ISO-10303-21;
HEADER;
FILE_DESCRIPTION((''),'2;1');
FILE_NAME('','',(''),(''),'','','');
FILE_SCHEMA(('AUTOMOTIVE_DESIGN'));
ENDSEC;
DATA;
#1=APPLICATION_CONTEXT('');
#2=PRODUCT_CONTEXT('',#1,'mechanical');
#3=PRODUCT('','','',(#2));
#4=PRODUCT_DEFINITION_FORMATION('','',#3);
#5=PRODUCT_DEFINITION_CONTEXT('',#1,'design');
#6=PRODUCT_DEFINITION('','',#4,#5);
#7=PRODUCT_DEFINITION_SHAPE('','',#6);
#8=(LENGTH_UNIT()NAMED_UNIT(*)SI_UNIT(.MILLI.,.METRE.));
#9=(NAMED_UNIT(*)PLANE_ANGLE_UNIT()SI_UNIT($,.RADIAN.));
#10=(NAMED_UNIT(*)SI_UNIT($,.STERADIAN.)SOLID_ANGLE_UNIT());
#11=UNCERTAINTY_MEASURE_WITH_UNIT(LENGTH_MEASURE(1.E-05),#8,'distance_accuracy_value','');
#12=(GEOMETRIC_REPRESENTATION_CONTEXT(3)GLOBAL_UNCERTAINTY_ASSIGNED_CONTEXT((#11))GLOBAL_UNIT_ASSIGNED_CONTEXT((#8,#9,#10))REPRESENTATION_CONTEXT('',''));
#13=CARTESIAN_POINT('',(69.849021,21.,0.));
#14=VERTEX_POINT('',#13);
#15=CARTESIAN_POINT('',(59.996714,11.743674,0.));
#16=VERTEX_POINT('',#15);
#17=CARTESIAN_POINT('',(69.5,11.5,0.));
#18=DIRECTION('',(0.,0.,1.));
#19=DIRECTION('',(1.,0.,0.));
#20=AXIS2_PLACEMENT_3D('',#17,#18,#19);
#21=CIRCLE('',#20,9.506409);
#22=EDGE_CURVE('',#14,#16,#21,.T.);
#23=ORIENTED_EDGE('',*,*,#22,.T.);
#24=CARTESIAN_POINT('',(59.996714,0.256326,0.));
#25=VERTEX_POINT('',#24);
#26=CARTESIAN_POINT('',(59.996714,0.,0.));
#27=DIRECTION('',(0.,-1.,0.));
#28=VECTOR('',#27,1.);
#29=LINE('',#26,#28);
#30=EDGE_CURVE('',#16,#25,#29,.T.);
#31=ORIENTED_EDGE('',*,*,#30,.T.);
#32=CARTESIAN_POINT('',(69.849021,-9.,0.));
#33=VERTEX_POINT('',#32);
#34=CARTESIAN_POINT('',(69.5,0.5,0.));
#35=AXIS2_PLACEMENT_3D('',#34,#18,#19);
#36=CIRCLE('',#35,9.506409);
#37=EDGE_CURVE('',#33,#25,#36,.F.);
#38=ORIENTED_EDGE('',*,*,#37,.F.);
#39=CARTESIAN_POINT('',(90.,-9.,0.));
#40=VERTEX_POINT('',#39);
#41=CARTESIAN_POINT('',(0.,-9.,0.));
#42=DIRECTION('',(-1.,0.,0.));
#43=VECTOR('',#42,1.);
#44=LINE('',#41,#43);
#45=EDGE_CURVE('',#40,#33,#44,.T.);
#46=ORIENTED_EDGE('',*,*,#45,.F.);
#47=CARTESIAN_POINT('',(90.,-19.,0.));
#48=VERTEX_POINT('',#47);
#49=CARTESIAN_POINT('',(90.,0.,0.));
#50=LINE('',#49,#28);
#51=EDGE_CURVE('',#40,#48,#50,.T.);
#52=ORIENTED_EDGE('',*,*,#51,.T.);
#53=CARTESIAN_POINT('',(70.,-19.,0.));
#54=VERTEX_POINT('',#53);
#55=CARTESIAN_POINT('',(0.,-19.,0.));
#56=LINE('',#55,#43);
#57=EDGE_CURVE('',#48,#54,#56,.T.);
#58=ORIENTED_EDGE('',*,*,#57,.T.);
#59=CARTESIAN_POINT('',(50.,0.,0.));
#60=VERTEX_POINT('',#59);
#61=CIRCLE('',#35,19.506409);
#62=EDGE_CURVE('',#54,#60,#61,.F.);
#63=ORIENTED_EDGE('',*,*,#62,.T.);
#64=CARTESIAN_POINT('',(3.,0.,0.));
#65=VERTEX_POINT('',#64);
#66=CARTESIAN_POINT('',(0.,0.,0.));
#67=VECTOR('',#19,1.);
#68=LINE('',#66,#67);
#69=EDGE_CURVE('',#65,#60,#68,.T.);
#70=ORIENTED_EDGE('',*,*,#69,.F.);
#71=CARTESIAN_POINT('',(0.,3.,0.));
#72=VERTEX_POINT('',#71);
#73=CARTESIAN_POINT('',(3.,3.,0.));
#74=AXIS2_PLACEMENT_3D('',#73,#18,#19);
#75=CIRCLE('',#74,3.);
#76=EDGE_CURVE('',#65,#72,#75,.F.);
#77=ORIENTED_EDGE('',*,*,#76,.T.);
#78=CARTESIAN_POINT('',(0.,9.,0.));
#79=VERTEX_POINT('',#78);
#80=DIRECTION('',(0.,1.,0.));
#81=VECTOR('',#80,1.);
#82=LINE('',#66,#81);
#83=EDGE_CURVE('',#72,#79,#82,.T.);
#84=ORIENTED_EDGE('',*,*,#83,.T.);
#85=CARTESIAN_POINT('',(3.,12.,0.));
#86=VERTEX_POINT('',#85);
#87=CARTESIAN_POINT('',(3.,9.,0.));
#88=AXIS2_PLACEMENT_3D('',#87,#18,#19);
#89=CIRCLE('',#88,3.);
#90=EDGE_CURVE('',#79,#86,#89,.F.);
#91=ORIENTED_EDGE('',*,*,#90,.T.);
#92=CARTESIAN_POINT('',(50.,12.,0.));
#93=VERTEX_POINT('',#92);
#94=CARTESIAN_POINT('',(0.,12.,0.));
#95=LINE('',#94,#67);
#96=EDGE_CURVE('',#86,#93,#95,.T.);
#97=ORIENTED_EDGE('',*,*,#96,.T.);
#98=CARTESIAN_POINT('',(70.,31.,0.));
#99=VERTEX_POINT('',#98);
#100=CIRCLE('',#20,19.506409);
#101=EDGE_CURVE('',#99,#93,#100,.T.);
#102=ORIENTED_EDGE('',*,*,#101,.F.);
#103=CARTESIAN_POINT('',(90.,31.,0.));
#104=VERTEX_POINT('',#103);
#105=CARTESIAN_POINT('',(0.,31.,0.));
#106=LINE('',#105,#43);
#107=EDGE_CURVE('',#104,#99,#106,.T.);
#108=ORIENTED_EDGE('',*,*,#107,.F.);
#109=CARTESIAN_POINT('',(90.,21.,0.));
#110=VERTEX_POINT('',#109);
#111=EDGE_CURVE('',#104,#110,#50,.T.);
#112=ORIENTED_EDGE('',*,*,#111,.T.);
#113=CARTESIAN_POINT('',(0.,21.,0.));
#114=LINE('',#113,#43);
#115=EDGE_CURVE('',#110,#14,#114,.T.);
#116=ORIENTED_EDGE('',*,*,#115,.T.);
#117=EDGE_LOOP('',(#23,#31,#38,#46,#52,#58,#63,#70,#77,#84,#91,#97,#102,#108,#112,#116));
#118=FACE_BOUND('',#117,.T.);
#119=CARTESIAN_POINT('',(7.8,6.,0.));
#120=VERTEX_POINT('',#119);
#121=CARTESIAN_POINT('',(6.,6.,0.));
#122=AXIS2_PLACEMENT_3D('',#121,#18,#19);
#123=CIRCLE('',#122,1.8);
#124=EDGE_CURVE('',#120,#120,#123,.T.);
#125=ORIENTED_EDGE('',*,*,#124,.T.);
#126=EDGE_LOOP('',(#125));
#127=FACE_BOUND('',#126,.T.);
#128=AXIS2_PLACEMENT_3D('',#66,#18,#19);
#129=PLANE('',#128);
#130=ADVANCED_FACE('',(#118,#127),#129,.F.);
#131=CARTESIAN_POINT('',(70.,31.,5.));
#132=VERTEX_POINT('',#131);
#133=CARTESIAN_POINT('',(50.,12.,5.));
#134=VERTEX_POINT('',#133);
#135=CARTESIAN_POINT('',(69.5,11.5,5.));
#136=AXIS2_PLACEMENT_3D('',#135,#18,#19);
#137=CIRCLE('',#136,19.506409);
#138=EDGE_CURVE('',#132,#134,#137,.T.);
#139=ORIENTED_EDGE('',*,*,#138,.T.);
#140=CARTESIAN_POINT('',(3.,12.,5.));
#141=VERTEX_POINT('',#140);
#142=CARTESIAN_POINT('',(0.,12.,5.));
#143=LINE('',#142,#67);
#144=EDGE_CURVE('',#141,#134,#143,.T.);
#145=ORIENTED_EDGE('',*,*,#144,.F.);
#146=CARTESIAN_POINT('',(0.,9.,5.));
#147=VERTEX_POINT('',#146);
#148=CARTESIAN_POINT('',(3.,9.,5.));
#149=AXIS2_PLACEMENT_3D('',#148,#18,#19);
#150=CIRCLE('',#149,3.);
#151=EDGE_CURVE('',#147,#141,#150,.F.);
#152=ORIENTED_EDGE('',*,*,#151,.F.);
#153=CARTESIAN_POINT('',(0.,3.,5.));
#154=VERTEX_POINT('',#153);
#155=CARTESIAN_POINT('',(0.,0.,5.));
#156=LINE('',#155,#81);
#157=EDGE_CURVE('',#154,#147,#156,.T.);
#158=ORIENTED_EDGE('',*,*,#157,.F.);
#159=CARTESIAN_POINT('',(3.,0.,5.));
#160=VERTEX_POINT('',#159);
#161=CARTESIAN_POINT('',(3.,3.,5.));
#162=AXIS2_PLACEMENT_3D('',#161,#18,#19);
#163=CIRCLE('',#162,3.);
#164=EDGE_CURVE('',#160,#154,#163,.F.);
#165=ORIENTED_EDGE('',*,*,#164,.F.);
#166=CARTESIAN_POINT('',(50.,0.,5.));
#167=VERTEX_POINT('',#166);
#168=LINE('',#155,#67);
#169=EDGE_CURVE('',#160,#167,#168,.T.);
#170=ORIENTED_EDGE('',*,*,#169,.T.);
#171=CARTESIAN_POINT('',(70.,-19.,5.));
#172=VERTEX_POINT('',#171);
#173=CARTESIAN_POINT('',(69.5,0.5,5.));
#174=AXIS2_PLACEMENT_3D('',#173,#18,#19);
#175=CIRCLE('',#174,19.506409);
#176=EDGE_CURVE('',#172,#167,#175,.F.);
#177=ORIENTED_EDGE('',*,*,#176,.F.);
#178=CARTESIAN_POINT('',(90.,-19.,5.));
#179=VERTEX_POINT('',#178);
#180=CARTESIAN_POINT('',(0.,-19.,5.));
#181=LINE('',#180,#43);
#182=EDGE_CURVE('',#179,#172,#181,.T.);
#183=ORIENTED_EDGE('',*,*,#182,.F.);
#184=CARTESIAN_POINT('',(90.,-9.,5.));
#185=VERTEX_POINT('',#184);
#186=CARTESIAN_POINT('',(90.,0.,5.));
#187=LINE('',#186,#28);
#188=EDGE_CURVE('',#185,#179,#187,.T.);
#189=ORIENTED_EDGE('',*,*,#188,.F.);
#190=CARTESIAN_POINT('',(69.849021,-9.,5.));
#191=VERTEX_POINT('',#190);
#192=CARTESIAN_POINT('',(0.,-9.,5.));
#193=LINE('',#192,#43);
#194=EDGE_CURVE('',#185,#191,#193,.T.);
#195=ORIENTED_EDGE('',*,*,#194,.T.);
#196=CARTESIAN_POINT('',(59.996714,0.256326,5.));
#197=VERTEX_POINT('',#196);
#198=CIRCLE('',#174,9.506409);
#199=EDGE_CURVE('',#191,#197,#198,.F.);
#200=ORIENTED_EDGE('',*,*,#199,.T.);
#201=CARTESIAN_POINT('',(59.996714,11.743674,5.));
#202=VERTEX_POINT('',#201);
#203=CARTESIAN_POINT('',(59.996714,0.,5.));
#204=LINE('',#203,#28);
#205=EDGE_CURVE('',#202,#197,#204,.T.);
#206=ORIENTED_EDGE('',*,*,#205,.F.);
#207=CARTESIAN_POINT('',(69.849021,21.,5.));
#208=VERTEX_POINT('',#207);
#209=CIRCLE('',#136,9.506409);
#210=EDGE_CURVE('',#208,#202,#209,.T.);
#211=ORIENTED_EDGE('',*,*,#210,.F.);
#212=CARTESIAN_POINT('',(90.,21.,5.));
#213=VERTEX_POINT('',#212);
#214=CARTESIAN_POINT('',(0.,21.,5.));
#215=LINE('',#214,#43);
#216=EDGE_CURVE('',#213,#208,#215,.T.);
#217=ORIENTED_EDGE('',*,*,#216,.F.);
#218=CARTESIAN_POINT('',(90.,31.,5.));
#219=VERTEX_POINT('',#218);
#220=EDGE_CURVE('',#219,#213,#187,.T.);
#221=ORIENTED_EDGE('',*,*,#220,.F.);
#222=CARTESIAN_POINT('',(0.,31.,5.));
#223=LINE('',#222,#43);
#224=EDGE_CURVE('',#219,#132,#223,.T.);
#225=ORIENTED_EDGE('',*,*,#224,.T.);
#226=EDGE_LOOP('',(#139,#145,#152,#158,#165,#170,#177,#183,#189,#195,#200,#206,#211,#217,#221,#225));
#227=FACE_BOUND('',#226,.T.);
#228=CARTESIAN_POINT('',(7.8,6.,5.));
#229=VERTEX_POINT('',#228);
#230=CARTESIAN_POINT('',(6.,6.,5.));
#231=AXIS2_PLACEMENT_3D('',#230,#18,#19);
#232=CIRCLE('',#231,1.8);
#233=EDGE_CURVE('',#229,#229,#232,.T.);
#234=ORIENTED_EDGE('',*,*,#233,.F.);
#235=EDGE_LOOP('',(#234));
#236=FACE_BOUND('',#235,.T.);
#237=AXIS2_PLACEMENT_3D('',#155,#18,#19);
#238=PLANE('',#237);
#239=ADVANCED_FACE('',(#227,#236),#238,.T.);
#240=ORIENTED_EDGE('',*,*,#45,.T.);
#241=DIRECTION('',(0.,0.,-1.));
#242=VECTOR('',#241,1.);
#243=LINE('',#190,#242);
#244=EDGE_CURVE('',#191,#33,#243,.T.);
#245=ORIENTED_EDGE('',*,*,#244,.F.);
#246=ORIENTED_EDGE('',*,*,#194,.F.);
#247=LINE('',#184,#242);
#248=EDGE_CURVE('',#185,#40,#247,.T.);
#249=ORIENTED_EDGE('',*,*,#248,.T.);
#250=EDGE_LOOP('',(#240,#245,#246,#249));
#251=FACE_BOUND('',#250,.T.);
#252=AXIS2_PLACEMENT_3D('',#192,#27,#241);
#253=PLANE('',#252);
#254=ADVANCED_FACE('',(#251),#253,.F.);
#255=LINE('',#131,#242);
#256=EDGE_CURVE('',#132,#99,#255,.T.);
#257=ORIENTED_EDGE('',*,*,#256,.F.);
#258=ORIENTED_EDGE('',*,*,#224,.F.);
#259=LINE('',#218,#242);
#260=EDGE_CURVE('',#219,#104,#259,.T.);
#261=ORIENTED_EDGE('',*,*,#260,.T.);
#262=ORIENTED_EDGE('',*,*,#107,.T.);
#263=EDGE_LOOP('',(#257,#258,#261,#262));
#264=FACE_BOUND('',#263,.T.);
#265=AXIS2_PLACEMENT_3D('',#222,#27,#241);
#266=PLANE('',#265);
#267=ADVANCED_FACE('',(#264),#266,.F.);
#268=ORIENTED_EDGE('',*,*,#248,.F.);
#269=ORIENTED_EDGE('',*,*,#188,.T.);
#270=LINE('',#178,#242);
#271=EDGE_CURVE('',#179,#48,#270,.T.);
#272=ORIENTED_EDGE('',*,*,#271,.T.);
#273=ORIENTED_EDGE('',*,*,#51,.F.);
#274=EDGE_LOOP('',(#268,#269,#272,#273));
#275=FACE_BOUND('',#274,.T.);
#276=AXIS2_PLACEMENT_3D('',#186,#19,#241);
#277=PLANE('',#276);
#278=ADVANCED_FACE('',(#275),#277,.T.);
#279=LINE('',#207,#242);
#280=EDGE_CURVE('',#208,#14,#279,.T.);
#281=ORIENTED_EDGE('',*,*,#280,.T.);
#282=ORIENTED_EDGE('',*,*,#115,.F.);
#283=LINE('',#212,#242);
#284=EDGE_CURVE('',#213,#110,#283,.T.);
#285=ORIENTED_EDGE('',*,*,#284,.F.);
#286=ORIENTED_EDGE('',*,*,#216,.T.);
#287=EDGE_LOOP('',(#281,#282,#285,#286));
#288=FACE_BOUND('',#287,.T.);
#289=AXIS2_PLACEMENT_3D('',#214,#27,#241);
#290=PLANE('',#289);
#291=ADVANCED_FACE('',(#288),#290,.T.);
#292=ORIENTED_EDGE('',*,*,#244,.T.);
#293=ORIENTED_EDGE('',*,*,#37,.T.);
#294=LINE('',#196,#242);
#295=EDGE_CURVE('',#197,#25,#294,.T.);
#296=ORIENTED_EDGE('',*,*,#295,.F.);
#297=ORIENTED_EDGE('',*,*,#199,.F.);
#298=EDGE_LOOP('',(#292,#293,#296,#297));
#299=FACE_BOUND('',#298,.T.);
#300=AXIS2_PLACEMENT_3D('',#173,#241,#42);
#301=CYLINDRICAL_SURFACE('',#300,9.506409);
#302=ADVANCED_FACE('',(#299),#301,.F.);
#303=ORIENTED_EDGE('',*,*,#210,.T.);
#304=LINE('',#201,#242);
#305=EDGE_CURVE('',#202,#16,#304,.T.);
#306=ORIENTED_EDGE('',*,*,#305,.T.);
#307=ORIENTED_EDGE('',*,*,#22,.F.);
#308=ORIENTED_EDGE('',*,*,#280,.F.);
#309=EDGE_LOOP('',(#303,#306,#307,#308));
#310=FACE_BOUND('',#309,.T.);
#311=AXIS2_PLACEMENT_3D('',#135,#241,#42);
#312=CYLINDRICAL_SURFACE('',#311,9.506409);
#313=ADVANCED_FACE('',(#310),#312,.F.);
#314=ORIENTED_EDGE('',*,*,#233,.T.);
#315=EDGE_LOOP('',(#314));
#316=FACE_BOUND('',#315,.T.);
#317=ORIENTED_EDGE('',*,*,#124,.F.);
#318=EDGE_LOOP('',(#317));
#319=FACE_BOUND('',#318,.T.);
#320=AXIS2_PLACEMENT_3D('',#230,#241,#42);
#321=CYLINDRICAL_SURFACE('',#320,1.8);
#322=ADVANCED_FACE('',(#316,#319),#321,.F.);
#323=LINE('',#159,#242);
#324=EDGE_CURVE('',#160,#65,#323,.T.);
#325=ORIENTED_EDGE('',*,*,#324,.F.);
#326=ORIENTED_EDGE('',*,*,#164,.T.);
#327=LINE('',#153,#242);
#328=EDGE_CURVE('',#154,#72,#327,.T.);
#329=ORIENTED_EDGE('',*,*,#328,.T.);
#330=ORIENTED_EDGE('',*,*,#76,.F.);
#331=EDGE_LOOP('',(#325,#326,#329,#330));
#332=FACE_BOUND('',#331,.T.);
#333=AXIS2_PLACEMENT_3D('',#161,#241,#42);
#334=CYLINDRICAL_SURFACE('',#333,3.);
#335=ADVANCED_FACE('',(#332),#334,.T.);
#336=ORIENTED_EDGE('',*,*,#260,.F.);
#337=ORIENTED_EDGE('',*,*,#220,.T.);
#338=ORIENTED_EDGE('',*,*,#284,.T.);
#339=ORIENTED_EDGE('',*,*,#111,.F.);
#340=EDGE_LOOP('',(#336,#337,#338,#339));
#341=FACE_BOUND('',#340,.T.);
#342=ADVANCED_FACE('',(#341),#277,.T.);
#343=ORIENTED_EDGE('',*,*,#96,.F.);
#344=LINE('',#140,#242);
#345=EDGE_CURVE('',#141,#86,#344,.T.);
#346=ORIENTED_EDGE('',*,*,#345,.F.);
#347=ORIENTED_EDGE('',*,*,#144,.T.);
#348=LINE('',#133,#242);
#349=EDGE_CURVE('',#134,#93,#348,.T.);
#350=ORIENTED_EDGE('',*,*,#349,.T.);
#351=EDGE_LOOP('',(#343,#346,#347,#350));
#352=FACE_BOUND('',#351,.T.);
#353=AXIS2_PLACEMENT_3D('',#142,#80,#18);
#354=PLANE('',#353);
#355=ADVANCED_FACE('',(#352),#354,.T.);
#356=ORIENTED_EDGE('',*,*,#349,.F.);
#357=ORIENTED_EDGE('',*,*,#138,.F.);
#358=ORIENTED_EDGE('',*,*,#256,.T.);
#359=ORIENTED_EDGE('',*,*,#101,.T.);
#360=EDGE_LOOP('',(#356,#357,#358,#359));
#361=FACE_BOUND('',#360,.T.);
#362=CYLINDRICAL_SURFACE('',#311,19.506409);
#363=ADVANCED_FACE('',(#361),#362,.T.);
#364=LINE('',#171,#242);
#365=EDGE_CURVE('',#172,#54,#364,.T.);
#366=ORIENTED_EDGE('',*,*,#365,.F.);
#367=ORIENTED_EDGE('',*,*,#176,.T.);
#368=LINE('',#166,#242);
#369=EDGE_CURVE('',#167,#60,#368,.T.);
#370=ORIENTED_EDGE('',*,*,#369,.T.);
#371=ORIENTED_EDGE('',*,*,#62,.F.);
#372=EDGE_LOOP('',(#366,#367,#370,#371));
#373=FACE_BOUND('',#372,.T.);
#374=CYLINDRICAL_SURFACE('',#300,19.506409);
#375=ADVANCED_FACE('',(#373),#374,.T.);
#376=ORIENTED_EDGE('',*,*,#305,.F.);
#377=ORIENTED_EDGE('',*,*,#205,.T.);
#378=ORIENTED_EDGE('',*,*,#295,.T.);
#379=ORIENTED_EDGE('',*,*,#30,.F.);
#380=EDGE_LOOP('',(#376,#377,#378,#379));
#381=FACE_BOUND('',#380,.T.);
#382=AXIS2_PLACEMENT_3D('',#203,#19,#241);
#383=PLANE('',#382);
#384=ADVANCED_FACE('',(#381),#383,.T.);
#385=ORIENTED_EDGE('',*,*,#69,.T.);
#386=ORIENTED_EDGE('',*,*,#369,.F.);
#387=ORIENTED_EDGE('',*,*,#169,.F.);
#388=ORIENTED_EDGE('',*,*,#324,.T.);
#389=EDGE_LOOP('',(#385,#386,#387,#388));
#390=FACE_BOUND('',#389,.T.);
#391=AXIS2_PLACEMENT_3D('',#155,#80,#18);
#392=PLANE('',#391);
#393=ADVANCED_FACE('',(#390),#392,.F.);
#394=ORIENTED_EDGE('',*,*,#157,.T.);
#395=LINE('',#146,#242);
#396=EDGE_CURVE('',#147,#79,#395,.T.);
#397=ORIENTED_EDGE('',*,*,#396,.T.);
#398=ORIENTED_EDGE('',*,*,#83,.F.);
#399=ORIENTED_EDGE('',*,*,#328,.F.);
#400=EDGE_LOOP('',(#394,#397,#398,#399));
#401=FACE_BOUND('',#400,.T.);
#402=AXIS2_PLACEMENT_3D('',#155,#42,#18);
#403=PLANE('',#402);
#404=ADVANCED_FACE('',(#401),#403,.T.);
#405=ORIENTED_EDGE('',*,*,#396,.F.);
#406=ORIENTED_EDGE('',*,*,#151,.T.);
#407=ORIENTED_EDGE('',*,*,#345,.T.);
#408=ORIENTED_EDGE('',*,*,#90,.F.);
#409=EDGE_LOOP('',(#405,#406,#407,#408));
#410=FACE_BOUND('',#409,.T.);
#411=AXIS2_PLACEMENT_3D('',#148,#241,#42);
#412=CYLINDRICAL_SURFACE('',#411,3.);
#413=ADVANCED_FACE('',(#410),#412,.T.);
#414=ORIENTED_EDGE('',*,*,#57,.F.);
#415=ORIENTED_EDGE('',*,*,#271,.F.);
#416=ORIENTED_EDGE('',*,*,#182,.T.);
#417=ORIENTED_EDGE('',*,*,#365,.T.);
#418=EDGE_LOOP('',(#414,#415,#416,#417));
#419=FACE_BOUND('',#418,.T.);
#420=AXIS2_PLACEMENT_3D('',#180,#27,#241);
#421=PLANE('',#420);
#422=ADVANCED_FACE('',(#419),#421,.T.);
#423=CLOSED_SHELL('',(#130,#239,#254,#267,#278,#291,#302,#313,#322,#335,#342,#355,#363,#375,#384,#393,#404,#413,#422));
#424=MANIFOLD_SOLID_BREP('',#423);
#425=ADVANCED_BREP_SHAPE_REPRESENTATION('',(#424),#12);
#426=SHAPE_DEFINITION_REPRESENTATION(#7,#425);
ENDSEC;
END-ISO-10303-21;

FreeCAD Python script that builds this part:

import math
import FreeCAD as App
import Part
import Sketcher
from FreeCAD import Vector

doc = App.newDocument("Part")
body = doc.addObject("PartDesign::Body", "Body")

sketch1 = body.newObject("Sketcher::SketchObject", "Sketch")
sketch1.AttachmentSupport = (doc.getObject("XY_Plane"), [""])
sketch1.MapMode = "FlatFace"
sketch1.addGeometry(Part.ArcOfCircle(Part.Circle(Vector(3, 9, 0), Vector(0, 0, 1), 3), math.radians(90), math.radians(180)), False)
sketch1.addGeometry(Part.LineSegment(Vector(0, 9, 0), Vector(0, 3, 0)), False)
sketch1.addGeometry(Part.ArcOfCircle(Part.Circle(Vector(3, 3, 0), Vector(0, 0, 1), 3), math.radians(180), math.radians(270)), False)
sketch1.addGeometry(Part.LineSegment(Vector(3, 0, 0), Vector(50, 0, 0)), False)
sketch1.addGeometry(Part.ArcOfCircle(Part.Circle(Vector(69.5, 0.5, 0), Vector(0, 0, 1), 19.5), math.radians(-179), math.radians(-89)), False)
sketch1.addGeometry(Part.LineSegment(Vector(70, -19, 0), Vector(90, -19, 0)), False)
sketch1.addGeometry(Part.LineSegment(Vector(90, -19, 0), Vector(90, -9, 0)), False)
sketch1.addGeometry(Part.LineSegment(Vector(90, -9, 0), Vector(69.8, -9, 0)), False)
sketch1.addGeometry(Part.ArcOfCircle(Part.Circle(Vector(69.5, 0.5, 0), Vector(0, 0, 1), 9.5), math.radians(-179), math.radians(-88)), False)
sketch1.addGeometry(Part.LineSegment(Vector(60, 0.3, 0), Vector(60, 11.7, 0)), False)
sketch1.addGeometry(Part.ArcOfCircle(Part.Circle(Vector(69.5, 11.5, 0), Vector(0, 0, 1), 9.5), math.radians(88), math.radians(179)), False)
sketch1.addGeometry(Part.LineSegment(Vector(69.8, 21, 0), Vector(90, 21, 0)), False)
sketch1.addGeometry(Part.LineSegment(Vector(90, 21, 0), Vector(90, 31, 0)), False)
sketch1.addGeometry(Part.LineSegment(Vector(90, 31, 0), Vector(70, 31, 0)), False)
sketch1.addGeometry(Part.ArcOfCircle(Part.Circle(Vector(69.5, 11.5, 0), Vector(0, 0, 1), 19.5), math.radians(89), math.radians(179)), False)
sketch1.addGeometry(Part.LineSegment(Vector(50, 12, 0), Vector(3, 12, 0)), False)
sketch1.addGeometry(Part.Circle(Vector(6, 6, 0), Vector(0, 0, 1), 1.8), False)
sketch1.addConstraint(Sketcher.Constraint("Tangent", 0, 2, 1, 1))
sketch1.addConstraint(Sketcher.Constraint("Tangent", 1, 2, 2, 1))
sketch1.addConstraint(Sketcher.Constraint("Tangent", 2, 2, 3, 1))
sketch1.addConstraint(Sketcher.Constraint("Coincident", 3, 2, 4, 1))
sketch1.addConstraint(Sketcher.Constraint("Coincident", 4, 2, 5, 1))
sketch1.addConstraint(Sketcher.Constraint("Coincident", 5, 2, 6, 1))
sketch1.addConstraint(Sketcher.Constraint("Coincident", 6, 2, 7, 1))
sketch1.addConstraint(Sketcher.Constraint("Coincident", 7, 2, 8, 2))
sketch1.addConstraint(Sketcher.Constraint("Coincident", 8, 1, 9, 1))
sketch1.addConstraint(Sketcher.Constraint("Coincident", 9, 2, 10, 2))
sketch1.addConstraint(Sketcher.Constraint("Coincident", 10, 1, 11, 1))
sketch1.addConstraint(Sketcher.Constraint("Coincident", 11, 2, 12, 1))
sketch1.addConstraint(Sketcher.Constraint("Coincident", 12, 2, 13, 1))
sketch1.addConstraint(Sketcher.Constraint("Coincident", 13, 2, 14, 1))
sketch1.addConstraint(Sketcher.Constraint("Coincident", 14, 2, 15, 1))
sketch1.addConstraint(Sketcher.Constraint("Tangent", 15, 2, 0, 1))
sketch1.addConstraint(Sketcher.Constraint("Vertical", 1))
sketch1.addConstraint(Sketcher.Constraint("Horizontal", 3))
sketch1.addConstraint(Sketcher.Constraint("Horizontal", 5))
sketch1.addConstraint(Sketcher.Constraint("Vertical", 6))
sketch1.addConstraint(Sketcher.Constraint("Horizontal", 7))
sketch1.addConstraint(Sketcher.Constraint("Vertical", 9))
sketch1.addConstraint(Sketcher.Constraint("Horizontal", 11))
sketch1.addConstraint(Sketcher.Constraint("Vertical", 12))
sketch1.addConstraint(Sketcher.Constraint("Horizontal", 13))
sketch1.addConstraint(Sketcher.Constraint("Horizontal", 15))
sketch1.addConstraint(Sketcher.Constraint("Coincident", 8, 3, 4, 3))
sketch1.addConstraint(Sketcher.Constraint("Coincident", 14, 3, 10, 3))
sketch1.addConstraint(Sketcher.Constraint("Equal", 0, 2))
sketch1.addConstraint(Sketcher.Constraint("Equal", 8, 10))
sketch1.addConstraint(Sketcher.Constraint("Equal", 4, 14))
sketch1.addConstraint(Sketcher.Constraint("PointOnObject", 0, 2, -2))
sketch1.addConstraint(Sketcher.Constraint("PointOnObject", 2, 2, -1))
sketch1.addConstraint(Sketcher.Constraint("Vertical", 8, 3, 10, 3))
sketch1.addConstraint(Sketcher.Constraint("Vertical", 7, 2, 10, 1))
sketch1.addConstraint(Sketcher.Constraint("Vertical", 6, 2, 11, 2))
sketch1.addConstraint(Sketcher.Constraint("Vertical", 4, 2, 13, 2))
sketch1.addConstraint(Sketcher.Constraint("Vertical", 3, 2, 14, 2))
sketch1.addConstraint(Sketcher.Constraint("Radius", 0, 3.0))
sketch1.addConstraint(Sketcher.Constraint("Diameter", 16, 3.6))
sketch1.addConstraint(Sketcher.Constraint("DistanceX", 3, 1, 3, 2, 47.0))
sketch1.addConstraint(Sketcher.Constraint("DistanceX", 5, 1, 5, 2, 20.0))
sketch1.addConstraint(Sketcher.Constraint("DistanceY", 1, 2, 1, 1, 6.0))
sketch1.addConstraint(Sketcher.Constraint("DistanceY", 6, 1, 6, 2, 10.0))
sketch1.addConstraint(Sketcher.Constraint("DistanceX", -1, 1, 16, 3, 6.0))
sketch1.addConstraint(Sketcher.Constraint("DistanceY", -1, 1, 16, 3, 6.0))
sketch1.addConstraint(Sketcher.Constraint("DistanceX", -1, 1, 4, 2, 70.0))
sketch1.addConstraint(Sketcher.Constraint("DistanceY", 4, 2, -1, 1, 19.0))
sketch1.addConstraint(Sketcher.Constraint("DistanceY", 8, 3, 10, 3, 11.0))
sketch1.addConstraint(Sketcher.Constraint("Radius", 8, 9.506409))
sketch1.addConstraint(Sketcher.Constraint("DistanceY", 9, 1, 9, 2, 11.487348))
pad1 = body.newObject("PartDesign::Pad", "Pad")
pad1.Profile = sketch1
pad1.Length = 5

doc.recompute()
